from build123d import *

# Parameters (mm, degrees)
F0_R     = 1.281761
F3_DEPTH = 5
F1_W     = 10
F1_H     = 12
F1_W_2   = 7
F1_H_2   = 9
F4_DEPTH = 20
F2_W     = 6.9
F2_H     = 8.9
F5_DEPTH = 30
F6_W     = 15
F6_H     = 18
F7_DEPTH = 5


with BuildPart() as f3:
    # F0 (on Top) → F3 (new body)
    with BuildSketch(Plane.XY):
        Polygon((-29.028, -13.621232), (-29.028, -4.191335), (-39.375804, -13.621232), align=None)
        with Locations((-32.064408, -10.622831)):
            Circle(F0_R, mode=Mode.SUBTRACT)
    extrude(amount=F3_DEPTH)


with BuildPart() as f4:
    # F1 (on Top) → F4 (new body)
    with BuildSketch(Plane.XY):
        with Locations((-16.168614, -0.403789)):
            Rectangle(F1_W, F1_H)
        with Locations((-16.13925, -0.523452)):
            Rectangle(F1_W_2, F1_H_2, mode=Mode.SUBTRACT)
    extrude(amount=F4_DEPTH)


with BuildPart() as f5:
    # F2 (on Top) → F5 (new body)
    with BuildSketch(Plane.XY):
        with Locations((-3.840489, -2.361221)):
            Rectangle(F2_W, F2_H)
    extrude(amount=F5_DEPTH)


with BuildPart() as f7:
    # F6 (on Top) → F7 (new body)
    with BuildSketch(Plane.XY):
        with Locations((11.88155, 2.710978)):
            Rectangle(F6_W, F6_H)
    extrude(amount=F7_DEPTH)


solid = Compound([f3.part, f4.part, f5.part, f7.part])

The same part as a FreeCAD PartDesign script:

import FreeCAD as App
import Part
import Sketcher

doc = App.newDocument("Part")
body = doc.addObject("PartDesign::Body", "Body")

# Sketch on XY plane
sketch1 = body.newObject("Sketcher::SketchObject", "Sketch")
sketch1.AttachmentSupport = (doc.getObject("XY_Plane"), [""])
sketch1.MapMode = "FlatFace"
sketch1.addGeometry([
    Part.LineSegment(App.Vector(-29, -13.6, 0), App.Vector(-29, -4.2, 0)),
    Part.LineSegment(App.Vector(-29, -4.2, 0), App.Vector(-39.4, -13.6, 0)),
    Part.LineSegment(App.Vector(-39.4, -13.6, 0), App.Vector(-29, -13.6, 0)),
    Part.Circle(App.Vector(-32.1, -10.6, 0), App.Vector(0, 0, 1), 1.3),
], False)
sketch1.addConstraint([
    Sketcher.Constraint("Coincident", 0, 2, 1, 1),
    Sketcher.Constraint("Coincident", 1, 2, 2, 1),
    Sketcher.Constraint("Coincident", 2, 2, 0, 1),
    Sketcher.Constraint("Vertical", 0),
    Sketcher.Constraint("Horizontal", 2),
    Sketcher.Constraint("Distance", 1, 14.0),
    Sketcher.Constraint("Diameter", 3, 2.563522),
    Sketcher.Constraint("DistanceX", 0, 2, -1, 1, 29.028),
    Sketcher.Constraint("DistanceY", 1, 2, 3, 3, 2.998401),
    Sketcher.Constraint("DistanceX", 2, 1, 2, 2, 10.347804),
    Sketcher.Constraint("DistanceY", 3, 3, -1, 1, 10.622831),
    Sketcher.Constraint("DistanceX", 3, 3, 0, 2, 3.036408),
])
pad1 = body.newObject("PartDesign::Pad", "Pad")
pad1.Profile = sketch1
pad1.Length = 5
body2 = doc.addObject("PartDesign::Body", "Body001")

# Sketch on XY plane
sketch2 = body2.newObject("Sketcher::SketchObject", "Sketch001")
sketch2.AttachmentSupport = (doc.getObject("XY_Plane001"), [""])
sketch2.MapMode = "FlatFace"
sketch2.addGeometry([
    Part.LineSegment(App.Vector(-21, 6, 0), App.Vector(-21, -6, 0)),  # 0
    Part.LineSegment(App.Vector(-21, -6, 0), App.Vector(-11, -6, 0)),  # 1
    Part.LineSegment(App.Vector(-11, -6, 0), App.Vector(-11, 6, 0)),  # 2
    Part.LineSegment(App.Vector(-11, 6, 0), App.Vector(-21, 6, 0)),  # 3
    Part.LineSegment(App.Vector(-13, -5, 0), App.Vector(-20, -5, 0)),  # 4
    Part.LineSegment(App.Vector(-20, -5, 0), App.Vector(-20, 4, 0)),  # 5
    Part.LineSegment(App.Vector(-20, 4, 0), App.Vector(-13, 4, 0)),  # 6
    Part.LineSegment(App.Vector(-13, 4, 0), App.Vector(-13, -5, 0)),  # 7
], False)
sketch2.addConstraint([
    Sketcher.Constraint("Coincident", 0, 2, 1, 1),
    Sketcher.Constraint("Coincident", 1, 2, 2, 1),
    Sketcher.Constraint("Coincident", 2, 2, 3, 1),
    Sketcher.Constraint("Coincident", 3, 2, 0, 1),
    Sketcher.Constraint("Coincident", 4, 2, 5, 1),
    Sketcher.Constraint("Coincident", 5, 2, 6, 1),
    Sketcher.Constraint("Coincident", 6, 2, 7, 1),
    Sketcher.Constraint("Coincident", 7, 2, 4, 1),
    Sketcher.Constraint("Vertical", 0),
    Sketcher.Constraint("Horizontal", 1),
    Sketcher.Constraint("Vertical", 2),
    Sketcher.Constraint("Horizontal", 3),
    Sketcher.Constraint("Horizontal", 4),
    Sketcher.Constraint("Vertical", 5),
    Sketcher.Constraint("Horizontal", 6),
    Sketcher.Constraint("Vertical", 7),
    Sketcher.Constraint("DistanceX", 1, 1, 1, 2, 10.0),
    Sketcher.Constraint("DistanceX", 4, 2, 4, 1, 7.0),
    Sketcher.Constraint("DistanceY", 0, 2, 0, 1, 12.0),
    Sketcher.Constraint("DistanceY", 5, 1, 5, 2, 9.0),
    Sketcher.Constraint("DistanceY", 0, 2, -1, 1, 6.403789),
    Sketcher.Constraint("DistanceX", 4, 2, -1, 1, 19.63925),
    Sketcher.Constraint("DistanceY", 4, 2, -1, 1, 5.023452),
    Sketcher.Constraint("DistanceX", 0, 2, -1, 1, 21.168614),
])
pad2 = body2.newObject("PartDesign::Pad", "Pad001")
pad2.Profile = sketch2
pad2.Length = 20
body3 = doc.addObject("PartDesign::Body", "Body002")

# Sketch on XY plane
sketch3 = body3.newObject("Sketcher::SketchObject", "Sketch002")
sketch3.AttachmentSupport = (doc.getObject("XY_Plane002"), [""])
sketch3.MapMode = "FlatFace"
sketch3.addGeometry([
    Part.LineSegment(App.Vector(-7, 2, 0), App.Vector(-7, -7, 0)),
    Part.LineSegment(App.Vector(-7, -7, 0), App.Vector(0, -7, 0)),
    Part.LineSegment(App.Vector(0, -7, 0), App.Vector(0, 2, 0)),
    Part.LineSegment(App.Vector(0, 2, 0), App.Vector(-7, 2, 0)),
], False)
sketch3.addConstraint([
    Sketcher.Constraint("Coincident", 0, 2, 1, 1),
    Sketcher.Constraint("Coincident", 1, 2, 2, 1),
    Sketcher.Constraint("Coincident", 2, 2, 3, 1),
    Sketcher.Constraint("Coincident", 3, 2, 0, 1),
    Sketcher.Constraint("Vertical", 0),
    Sketcher.Constraint("Horizontal", 1),
    Sketcher.Constraint("Vertical", 2),
    Sketcher.Constraint("Horizontal", 3),
    Sketcher.Constraint("DistanceX", 1, 1, 1, 2, 6.9),
    Sketcher.Constraint("DistanceY", 0, 2, 0, 1, 8.9),
    Sketcher.Constraint("DistanceX", 0, 2, -1, 1, 7.290489),
    Sketcher.Constraint("DistanceY", 0, 2, -1, 1, 6.811221),
])
pad3 = body3.newObject("PartDesign::Pad", "Pad002")
pad3.Profile = sketch3
pad3.Length = 30
body4 = doc.addObject("PartDesign::Body", "Body003")

# Sketch on XY plane
sketch4 = body4.newObject("Sketcher::SketchObject", "Sketch003")
sketch4.AttachmentSupport = (doc.getObject("XY_Plane003"), [""])
sketch4.MapMode = "FlatFace"
sketch4.addGeometry([
    Part.LineSegment(App.Vector(4, 12, 0), App.Vector(4, -6, 0)),
    Part.LineSegment(App.Vector(4, -6, 0), App.Vector(19, -6, 0)),
    Part.LineSegment(App.Vector(19, -6, 0), App.Vector(19, 12, 0)),
    Part.LineSegment(App.Vector(19, 12, 0), App.Vector(4, 12, 0)),
], False)
sketch4.addConstraint([
    Sketcher.Constraint("Coincident", 0, 2, 1, 1),
    Sketcher.Constraint("Coincident", 1, 2, 2, 1),
    Sketcher.Constraint("Coincident", 2, 2, 3, 1),
    Sketcher.Constraint("Coincident", 3, 2, 0, 1),
    Sketcher.Constraint("Vertical", 0),
    Sketcher.Constraint("Horizontal", 1),
    Sketcher.Constraint("Vertical", 2),
    Sketcher.Constraint("Horizontal", 3),
    Sketcher.Constraint("DistanceX", 1, 1, 1, 2, 15.0),
    Sketcher.Constraint("DistanceY", 0, 2, 0, 1, 18.0),
    Sketcher.Constraint("DistanceX", -1, 1, 0, 2, 4.38155),
    Sketcher.Constraint("DistanceY", -1, 1, 2, 2, 11.710978),
])
pad4 = body4.newObject("PartDesign::Pad", "Pad003")
pad4.Profile = sketch4
pad4.Length = 5

doc.recompute()
